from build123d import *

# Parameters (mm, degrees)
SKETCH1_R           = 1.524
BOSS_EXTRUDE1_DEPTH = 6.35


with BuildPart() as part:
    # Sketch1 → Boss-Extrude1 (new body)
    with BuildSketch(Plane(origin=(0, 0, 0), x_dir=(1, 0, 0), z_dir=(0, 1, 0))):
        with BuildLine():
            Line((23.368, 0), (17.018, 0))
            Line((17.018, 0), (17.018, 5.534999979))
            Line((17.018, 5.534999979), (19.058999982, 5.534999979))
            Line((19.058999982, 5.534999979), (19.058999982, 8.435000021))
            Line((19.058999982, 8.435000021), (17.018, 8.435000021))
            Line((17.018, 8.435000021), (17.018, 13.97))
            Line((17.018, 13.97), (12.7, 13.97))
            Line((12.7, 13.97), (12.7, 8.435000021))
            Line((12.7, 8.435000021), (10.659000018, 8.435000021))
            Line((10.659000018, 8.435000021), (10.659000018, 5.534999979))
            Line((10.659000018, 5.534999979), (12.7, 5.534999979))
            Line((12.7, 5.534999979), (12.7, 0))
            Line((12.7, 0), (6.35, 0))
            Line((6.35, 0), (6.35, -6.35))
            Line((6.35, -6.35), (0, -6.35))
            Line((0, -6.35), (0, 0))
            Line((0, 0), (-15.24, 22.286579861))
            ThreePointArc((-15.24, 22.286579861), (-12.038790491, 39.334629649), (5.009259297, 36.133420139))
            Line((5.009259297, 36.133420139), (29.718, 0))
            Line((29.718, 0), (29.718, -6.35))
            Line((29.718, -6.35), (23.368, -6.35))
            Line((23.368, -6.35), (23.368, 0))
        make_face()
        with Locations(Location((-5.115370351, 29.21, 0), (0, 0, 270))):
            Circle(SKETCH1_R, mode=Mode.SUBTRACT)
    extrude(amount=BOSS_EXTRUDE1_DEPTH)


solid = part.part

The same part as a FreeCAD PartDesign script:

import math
import FreeCAD as App
import Part
import Sketcher
Q = App.Units.Quantity

doc = App.newDocument("Part")
params = doc.addObject("Spreadsheet::Sheet", "Params")
for row, (alias, value) in enumerate([
    ("sketch1_diameter", "0.12 in"),
    ("sketch1_width", "0.25 in"),
    ("sketch1_width2", "0.17 in"),
    ("pad1_length", "0.25 in"),
], start=1):
    params.set(f"A{row}", alias)
    params.set(f"B{row}", "=" + value)
    params.setAlias(f"B{row}", alias)

body = doc.addObject("PartDesign::Body", "Body")

# Sketch on XZ plane
sketch1 = doc.addObject("Sketcher::SketchObject", "Sketch")
body.addObject(sketch1)
sketch1.AttachmentSupport = (doc.XZ_Plane, [""])
sketch1.MapMode = "FlatFace"
sketch1.addGeometry(Part.LineSegment(App.Vector(17.018, 0, 0), App.Vector(23.368, 0, 0)), False)
sketch1.addGeometry(Part.LineSegment(App.Vector(23.368, 0, 0), App.Vector(23.368, 6.35, 0)), False)
sketch1.addGeometry(Part.LineSegment(App.Vector(23.368, 6.35, 0), App.Vector(29.718, 6.35, 0)), False)
sketch1.addGeometry(Part.LineSegment(App.Vector(29.718, 6.35, 0), App.Vector(29.718, 0, 0)), False)
sketch1.addGeometry(Part.LineSegment(App.Vector(29.718, 0, 0), App.Vector(5.009259, -36.13342, 0)), False)
sketch1.addGeometry(Part.ArcOfCircle(Part.Circle(App.Vector(-5.11537, -29.21, 0), App.Vector(0, 0, 1), 12.265475), math.radians(145.634915), math.radians(325.634915)), False)
sketch1.addGeometry(Part.LineSegment(App.Vector(-15.24, -22.28658, 0), App.Vector(0, 0, 0)), False)
sketch1.addGeometry(Part.LineSegment(App.Vector(0, 0, 0), App.Vector(0, 6.35, 0)), False)
sketch1.addGeometry(Part.LineSegment(App.Vector(0, 6.35, 0), App.Vector(6.35, 6.35, 0)), False)
sketch1.addGeometry(Part.LineSegment(App.Vector(6.35, 6.35, 0), App.Vector(6.35, 0, 0)), False)
sketch1.addGeometry(Part.LineSegment(App.Vector(6.35, 0, 0), App.Vector(12.7, 0, 0)), False)
sketch1.addGeometry(Part.LineSegment(App.Vector(12.7, 0, 0), App.Vector(12.7, -5.535, 0)), False)
sketch1.addGeometry(Part.LineSegment(App.Vector(12.7, -5.535, 0), App.Vector(10.659, -5.535, 0)), False)
sketch1.addGeometry(Part.LineSegment(App.Vector(10.659, -5.535, 0), App.Vector(10.659, -8.435, 0)), False)
sketch1.addGeometry(Part.LineSegment(App.Vector(10.659, -8.435, 0), App.Vector(12.7, -8.435, 0)), False)
sketch1.addGeometry(Part.LineSegment(App.Vector(12.7, -8.435, 0), App.Vector(12.7, -13.97, 0)), False)
sketch1.addGeometry(Part.LineSegment(App.Vector(12.7, -13.97, 0), App.Vector(17.018, -13.97, 0)), False)
sketch1.addGeometry(Part.LineSegment(App.Vector(17.018, -13.97, 0), App.Vector(17.018, -8.435, 0)), False)
sketch1.addGeometry(Part.LineSegment(App.Vector(17.018, -8.435, 0), App.Vector(19.059, -8.435, 0)), False)
sketch1.addGeometry(Part.LineSegment(App.Vector(19.059, -8.435, 0), App.Vector(19.059, -5.535, 0)), False)
sketch1.addGeometry(Part.LineSegment(App.Vector(19.059, -5.535, 0), App.Vector(17.018, -5.535, 0)), False)
sketch1.addGeometry(Part.LineSegment(App.Vector(17.018, -5.535, 0), App.Vector(17.018, 0, 0)), False)
sketch1.addGeometry(Part.Circle(App.Vector(-5.11537, -29.21, 0), App.Vector(0, 0, 1), 1.524), False)
sketch1.addConstraint(Sketcher.Constraint("Coincident", 0, 2, 1, 1))
sketch1.addConstraint(Sketcher.Constraint("Coincident", 1, 2, 2, 1))
sketch1.addConstraint(Sketcher.Constraint("Coincident", 2, 2, 3, 1))
sketch1.addConstraint(Sketcher.Constraint("Coincident", 3, 2, 4, 1))
sketch1.addConstraint(Sketcher.Constraint("Tangent", 4, 2, 5, 2))
sketch1.addConstraint(Sketcher.Constraint("Tangent", 5, 1, 6, 1))
sketch1.addConstraint(Sketcher.Constraint("Coincident", 6, 2, 7, 1))
sketch1.addConstraint(Sketcher.Constraint("Coincident", 7, 2, 8, 1))
sketch1.addConstraint(Sketcher.Constraint("Coincident", 8, 2, 9, 1))
sketch1.addConstraint(Sketcher.Constraint("Coincident", 9, 2, 10, 1))
sketch1.addConstraint(Sketcher.Constraint("Coincident", 10, 2, 11, 1))
sketch1.addConstraint(Sketcher.Constraint("Coincident", 11, 2, 12, 1))
sketch1.addConstraint(Sketcher.Constraint("Coincident", 12, 2, 13, 1))
sketch1.addConstraint(Sketcher.Constraint("Coincident", 13, 2, 14, 1))
sketch1.addConstraint(Sketcher.Constraint("Coincident", 14, 2, 15, 1))
sketch1.addConstraint(Sketcher.Constraint("Coincident", 15, 2, 16, 1))
sketch1.addConstraint(Sketcher.Constraint("Coincident", 16, 2, 17, 1))
sketch1.addConstraint(Sketcher.Constraint("Coincident", 17, 2, 18, 1))
sketch1.addConstraint(Sketcher.Constraint("Coincident", 18, 2, 19, 1))
sketch1.addConstraint(Sketcher.Constraint("Coincident", 19, 2, 20, 1))
sketch1.addConstraint(Sketcher.Constraint("Coincident", 20, 2, 21, 1))
sketch1.addConstraint(Sketcher.Constraint("Coincident", 21, 2, 0, 1))
sketch1.addConstraint(Sketcher.Constraint("Horizontal", 0))
sketch1.addConstraint(Sketcher.Constraint("Vertical", 1))
sketch1.addConstraint(Sketcher.Constraint("Horizontal", 2))
sketch1.addConstraint(Sketcher.Constraint("Vertical", 3))
sketch1.addConstraint(Sketcher.Constraint("Vertical", 7))
sketch1.addConstraint(Sketcher.Constraint("Horizontal", 8))
sketch1.addConstraint(Sketcher.Constraint("Vertical", 9))
sketch1.addConstraint(Sketcher.Constraint("Horizontal", 10))
sketch1.addConstraint(Sketcher.Constraint("Vertical", 11))
sketch1.addConstraint(Sketcher.Constraint("Horizontal", 12))
sketch1.addConstraint(Sketcher.Constraint("Vertical", 13))
sketch1.addConstraint(Sketcher.Constraint("Horizontal", 14))
sketch1.addConstraint(Sketcher.Constraint("Vertical", 15))
sketch1.addConstraint(Sketcher.Constraint("Horizontal", 16))
sketch1.addConstraint(Sketcher.Constraint("Vertical", 17))
sketch1.addConstraint(Sketcher.Constraint("Horizontal", 18))
sketch1.addConstraint(Sketcher.Constraint("Vertical", 19))
sketch1.addConstraint(Sketcher.Constraint("Horizontal", 20))
sketch1.addConstraint(Sketcher.Constraint("Vertical", 21))
sketch1.addConstraint(Sketcher.Constraint("Coincident", 6, 2, -1, 1))
sketch1.addConstraint(Sketcher.Constraint("Coincident", 22, 3, 5, 3))
sketch1.addConstraint(Sketcher.Constraint("PointOnObject", 0, 2, -1))
sketch1.addConstraint(Sketcher.Constraint("PointOnObject", 3, 2, -1))
sketch1.addConstraint(Sketcher.Constraint("PointOnObject", 9, 2, -1))
sketch1.addConstraint(Sketcher.Constraint("Parallel", 4, 6))
sketch1.addConstraint(Sketcher.Constraint("Horizontal", 2, 2, 7, 2))
sketch1.addConstraint(Sketcher.Constraint("Horizontal", 14, 2, 17, 2))
sketch1.addConstraint(Sketcher.Constraint("Horizontal", 12, 2, 19, 2))
sketch1.addConstraint(Sketcher.Constraint("Vertical", 11, 2, 14, 2))
sketch1.addConstraint(Sketcher.Constraint("Vertical", 17, 2, 20, 2))
sketch1.addConstraint(Sketcher.Constraint("Equal", 0, 2))
sketch1.addConstraint(Sketcher.Constraint("Equal", 2, 8))
sketch1.addConstraint(Sketcher.Constraint("Equal", 8, 10))
sketch1.addConstraint(Sketcher.Constraint("Equal", 14, 18))
sketch1.addConstraint(Sketcher.Constraint("Equal", 10, 1))
sketch1.addConstraint(Sketcher.Constraint("Equal", 11, 15))
sketch1.addConstraint(Sketcher.Constraint("Diameter", 22, Q("0.12 in")))
sketch1.addConstraint(Sketcher.Constraint("DistanceX", 0, 1, 0, 2, Q("0.25 in")))
sketch1.addConstraint(Sketcher.Constraint("DistanceX", 16, 1, 16, 2, Q("0.17 in")))
sketch1.addConstraint(Sketcher.Constraint("DistanceX", 5, 1, -1, 1, Q("0.6 in")))
sketch1.addConstraint(Sketcher.Constraint("DistanceY", 22, 3, 1, 2, Q("1.4 in")))
sketch1.addConstraint(Sketcher.Constraint("DistanceY", 15, 2, -1, 1, Q("0.55 in")))
sketch1.addConstraint(Sketcher.Constraint("DistanceX", 12, 2, 12, 1, 2.041))
sketch1.addConstraint(Sketcher.Constraint("DistanceY", 11, 2, 11, 1, 5.535))
sketch1.setExpression("Constraints[58]", "Params.sketch1_diameter")
sketch1.setExpression("Constraints[59]", "Params.sketch1_width")
sketch1.setExpression("Constraints[60]", "Params.sketch1_width2")
pad1 = doc.addObject("PartDesign::Pad", "Pad")
body.addObject(pad1)
pad1.Profile = sketch1
pad1.setExpression("Length", "Params.pad1_length")
pad1.Reversed = True

doc.recompute()
